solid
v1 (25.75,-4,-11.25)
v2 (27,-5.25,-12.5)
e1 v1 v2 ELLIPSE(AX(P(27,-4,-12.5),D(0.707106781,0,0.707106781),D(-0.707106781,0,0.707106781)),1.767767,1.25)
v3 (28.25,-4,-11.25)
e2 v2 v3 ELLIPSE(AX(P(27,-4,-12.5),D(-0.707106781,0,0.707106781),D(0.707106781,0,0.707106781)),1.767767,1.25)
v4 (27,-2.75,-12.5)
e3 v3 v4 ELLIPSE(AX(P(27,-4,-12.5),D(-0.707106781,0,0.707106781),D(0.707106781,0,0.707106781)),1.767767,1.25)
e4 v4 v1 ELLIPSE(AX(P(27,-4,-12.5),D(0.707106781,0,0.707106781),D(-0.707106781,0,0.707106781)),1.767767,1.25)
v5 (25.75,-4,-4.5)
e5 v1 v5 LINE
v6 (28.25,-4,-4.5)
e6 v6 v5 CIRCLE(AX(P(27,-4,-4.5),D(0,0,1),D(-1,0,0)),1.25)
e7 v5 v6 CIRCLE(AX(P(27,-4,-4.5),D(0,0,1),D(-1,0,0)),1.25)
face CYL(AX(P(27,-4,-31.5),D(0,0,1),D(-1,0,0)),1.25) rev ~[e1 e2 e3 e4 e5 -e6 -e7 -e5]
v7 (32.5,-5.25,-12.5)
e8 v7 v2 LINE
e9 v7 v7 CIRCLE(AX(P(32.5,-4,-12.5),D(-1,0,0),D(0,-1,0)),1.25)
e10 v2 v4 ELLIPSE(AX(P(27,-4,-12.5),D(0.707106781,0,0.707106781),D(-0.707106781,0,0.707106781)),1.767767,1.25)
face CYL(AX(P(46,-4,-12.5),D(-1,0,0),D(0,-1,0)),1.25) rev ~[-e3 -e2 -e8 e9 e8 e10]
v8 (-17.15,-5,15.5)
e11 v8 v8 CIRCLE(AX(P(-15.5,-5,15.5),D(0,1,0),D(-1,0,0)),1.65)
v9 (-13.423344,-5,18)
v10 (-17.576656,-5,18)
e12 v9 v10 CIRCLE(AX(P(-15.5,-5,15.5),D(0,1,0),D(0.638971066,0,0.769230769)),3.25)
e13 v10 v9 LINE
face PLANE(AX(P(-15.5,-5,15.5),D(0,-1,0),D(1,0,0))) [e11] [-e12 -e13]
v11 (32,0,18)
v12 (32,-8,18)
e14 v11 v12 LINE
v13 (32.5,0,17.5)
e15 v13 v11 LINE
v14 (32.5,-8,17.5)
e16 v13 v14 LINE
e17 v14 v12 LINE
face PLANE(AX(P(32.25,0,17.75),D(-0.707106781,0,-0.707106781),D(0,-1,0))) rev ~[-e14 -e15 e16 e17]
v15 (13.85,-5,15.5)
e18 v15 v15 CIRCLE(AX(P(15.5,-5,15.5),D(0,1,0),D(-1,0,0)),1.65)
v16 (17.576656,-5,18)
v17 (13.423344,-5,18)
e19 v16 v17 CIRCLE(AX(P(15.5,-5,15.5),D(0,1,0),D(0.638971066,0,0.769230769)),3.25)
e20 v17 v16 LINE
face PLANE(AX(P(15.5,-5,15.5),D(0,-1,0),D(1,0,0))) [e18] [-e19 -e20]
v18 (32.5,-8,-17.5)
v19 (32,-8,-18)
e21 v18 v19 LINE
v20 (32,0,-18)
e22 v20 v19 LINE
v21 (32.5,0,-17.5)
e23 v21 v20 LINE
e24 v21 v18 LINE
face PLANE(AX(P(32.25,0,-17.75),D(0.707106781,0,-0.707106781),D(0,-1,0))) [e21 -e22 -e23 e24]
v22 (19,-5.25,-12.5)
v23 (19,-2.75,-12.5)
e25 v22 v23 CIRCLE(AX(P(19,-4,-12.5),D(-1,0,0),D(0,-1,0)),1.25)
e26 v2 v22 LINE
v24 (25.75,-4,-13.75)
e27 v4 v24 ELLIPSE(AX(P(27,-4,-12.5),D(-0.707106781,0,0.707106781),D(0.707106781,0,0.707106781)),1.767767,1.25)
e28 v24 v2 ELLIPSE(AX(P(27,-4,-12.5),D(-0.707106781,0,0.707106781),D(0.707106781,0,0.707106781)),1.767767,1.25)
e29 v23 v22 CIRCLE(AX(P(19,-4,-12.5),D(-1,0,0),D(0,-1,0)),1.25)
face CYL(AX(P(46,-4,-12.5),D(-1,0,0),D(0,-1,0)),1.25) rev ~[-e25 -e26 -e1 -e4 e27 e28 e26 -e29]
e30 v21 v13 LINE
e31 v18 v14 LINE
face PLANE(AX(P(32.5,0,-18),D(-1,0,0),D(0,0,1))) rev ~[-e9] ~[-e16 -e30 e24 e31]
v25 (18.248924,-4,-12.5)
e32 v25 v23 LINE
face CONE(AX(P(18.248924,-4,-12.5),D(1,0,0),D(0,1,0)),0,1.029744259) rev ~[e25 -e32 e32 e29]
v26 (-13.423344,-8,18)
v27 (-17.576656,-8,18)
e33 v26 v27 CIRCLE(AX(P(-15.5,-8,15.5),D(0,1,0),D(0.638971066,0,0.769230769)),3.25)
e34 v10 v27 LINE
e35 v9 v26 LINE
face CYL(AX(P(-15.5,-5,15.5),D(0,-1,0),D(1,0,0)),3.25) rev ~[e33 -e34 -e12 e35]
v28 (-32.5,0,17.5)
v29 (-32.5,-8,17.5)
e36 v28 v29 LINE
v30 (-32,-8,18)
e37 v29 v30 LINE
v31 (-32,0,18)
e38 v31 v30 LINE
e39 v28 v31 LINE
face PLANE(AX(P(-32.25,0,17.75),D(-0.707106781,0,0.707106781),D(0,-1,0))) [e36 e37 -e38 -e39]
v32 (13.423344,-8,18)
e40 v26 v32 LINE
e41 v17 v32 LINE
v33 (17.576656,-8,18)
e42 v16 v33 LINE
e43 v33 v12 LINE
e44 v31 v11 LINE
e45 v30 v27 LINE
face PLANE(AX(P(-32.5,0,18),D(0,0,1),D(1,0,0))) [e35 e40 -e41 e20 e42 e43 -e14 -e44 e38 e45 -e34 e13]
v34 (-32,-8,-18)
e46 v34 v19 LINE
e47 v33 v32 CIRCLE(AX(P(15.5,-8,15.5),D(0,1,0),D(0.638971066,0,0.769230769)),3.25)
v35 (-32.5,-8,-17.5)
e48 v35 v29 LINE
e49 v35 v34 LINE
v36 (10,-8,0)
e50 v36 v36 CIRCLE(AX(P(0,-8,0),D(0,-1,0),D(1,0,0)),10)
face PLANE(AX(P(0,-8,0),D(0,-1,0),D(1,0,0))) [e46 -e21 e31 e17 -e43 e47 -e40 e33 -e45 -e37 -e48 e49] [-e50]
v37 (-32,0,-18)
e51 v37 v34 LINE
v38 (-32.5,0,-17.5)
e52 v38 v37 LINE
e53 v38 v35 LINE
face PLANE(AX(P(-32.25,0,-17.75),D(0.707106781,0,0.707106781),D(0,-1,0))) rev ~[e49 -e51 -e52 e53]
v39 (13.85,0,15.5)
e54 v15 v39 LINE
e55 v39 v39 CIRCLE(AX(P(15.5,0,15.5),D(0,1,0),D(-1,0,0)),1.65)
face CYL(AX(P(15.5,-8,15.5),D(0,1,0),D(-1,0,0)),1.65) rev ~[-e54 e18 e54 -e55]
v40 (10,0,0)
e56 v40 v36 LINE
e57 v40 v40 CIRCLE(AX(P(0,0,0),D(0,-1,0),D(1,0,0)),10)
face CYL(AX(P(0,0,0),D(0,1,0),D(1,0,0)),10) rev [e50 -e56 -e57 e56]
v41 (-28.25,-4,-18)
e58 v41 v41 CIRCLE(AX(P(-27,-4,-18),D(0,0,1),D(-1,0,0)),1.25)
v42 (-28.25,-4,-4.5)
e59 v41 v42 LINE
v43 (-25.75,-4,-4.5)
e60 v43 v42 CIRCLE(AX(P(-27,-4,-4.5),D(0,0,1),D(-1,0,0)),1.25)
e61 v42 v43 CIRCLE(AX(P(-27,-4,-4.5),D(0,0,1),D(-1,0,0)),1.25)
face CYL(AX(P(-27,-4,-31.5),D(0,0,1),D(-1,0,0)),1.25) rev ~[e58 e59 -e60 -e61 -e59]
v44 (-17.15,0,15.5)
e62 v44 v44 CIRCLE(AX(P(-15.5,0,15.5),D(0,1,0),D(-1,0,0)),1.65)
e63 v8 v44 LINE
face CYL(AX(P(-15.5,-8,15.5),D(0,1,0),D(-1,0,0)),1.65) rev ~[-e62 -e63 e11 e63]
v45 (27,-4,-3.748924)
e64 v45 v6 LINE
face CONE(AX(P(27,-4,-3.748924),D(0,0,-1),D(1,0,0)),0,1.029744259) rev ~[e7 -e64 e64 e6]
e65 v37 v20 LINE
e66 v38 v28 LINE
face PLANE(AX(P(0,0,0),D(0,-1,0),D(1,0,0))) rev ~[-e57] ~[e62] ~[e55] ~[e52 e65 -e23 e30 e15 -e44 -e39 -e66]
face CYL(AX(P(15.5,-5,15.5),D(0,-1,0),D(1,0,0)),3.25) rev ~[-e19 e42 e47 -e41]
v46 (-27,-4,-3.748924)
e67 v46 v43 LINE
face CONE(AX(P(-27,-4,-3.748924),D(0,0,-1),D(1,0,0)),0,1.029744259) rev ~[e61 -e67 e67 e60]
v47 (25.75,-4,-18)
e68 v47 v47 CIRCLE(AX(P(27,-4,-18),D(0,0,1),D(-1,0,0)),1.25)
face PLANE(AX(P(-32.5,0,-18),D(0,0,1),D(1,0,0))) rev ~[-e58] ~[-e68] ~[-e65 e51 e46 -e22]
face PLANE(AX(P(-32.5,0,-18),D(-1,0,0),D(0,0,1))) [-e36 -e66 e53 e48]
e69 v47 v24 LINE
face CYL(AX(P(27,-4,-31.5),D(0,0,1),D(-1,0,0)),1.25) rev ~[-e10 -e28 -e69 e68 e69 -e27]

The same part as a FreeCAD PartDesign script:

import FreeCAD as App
import Part
import Sketcher
Q = App.Units.Quantity


def edges_at(feature, points):
    """Names of the edges that pass closest to the given points."""
    edges = feature.Shape.Edges
    near = lambda p: min(range(len(edges)), key=lambda i: edges[i].distToShape(Part.Vertex(*p))[0])
    return sorted({f"Edge{near(p) + 1}" for p in points})

doc = App.newDocument("Part")
body = doc.addObject("PartDesign::Body", "Body")

sketch1 = body.newObject("Sketcher::SketchObject", "Sketch")
sketch1.AttachmentSupport = (doc.getObject("XZ_Plane"), [""])
sketch1.MapMode = "FlatFace"
sketch1.addGeometry([
    Part.LineSegment(App.Vector(-32, 18, 0), App.Vector(-32, -18, 0)),
    Part.LineSegment(App.Vector(-32, -18, 0), App.Vector(32, -18, 0)),
    Part.LineSegment(App.Vector(32, -18, 0), App.Vector(32, 18, 0)),
    Part.LineSegment(App.Vector(32, 18, 0), App.Vector(-32, 18, 0)),
    Part.Circle(App.Vector(0, 0, 0), App.Vector(0, 0, 1), 10),
], False)
sketch1.addConstraint([
    Sketcher.Constraint("Coincident", 0, 2, 1, 1),
    Sketcher.Constraint("Coincident", 1, 2, 2, 1),
    Sketcher.Constraint("Coincident", 2, 2, 3, 1),
    Sketcher.Constraint("Coincident", 3, 2, 0, 1),
    Sketcher.Constraint("Vertical", 0),
    Sketcher.Constraint("Horizontal", 1),
    Sketcher.Constraint("Vertical", 2),
    Sketcher.Constraint("Horizontal", 3),
    Sketcher.Constraint("Coincident", 4, 3, -1, 1),
    Sketcher.Constraint("Symmetric", 0, 2, 2, 2, -1, 1),
    Sketcher.Constraint("Diameter", 4, Q("20 mm")),
    Sketcher.Constraint("DistanceX", 1, 1, 1, 2, Q("65 mm")),
    Sketcher.Constraint("DistanceY", 0, 2, 0, 1, Q("36 mm")),
])
pad1 = body.newObject("PartDesign::Pad", "Pad")
pad1.Profile = sketch1
pad1.Length = 8

sketch2 = body.newObject("Sketcher::SketchObject", "Sketch001")
sketch2.AttachmentSupport = (doc.getObject("XZ_Plane"), [""])
sketch2.MapMode = "FlatFace"
sketch2.AttachmentOffset = App.Placement(App.Vector(0, 0, 8), App.Rotation())
sketch2.addGeometry([
    Part.Circle(App.Vector(15.5, 15.5, 0), App.Vector(0, 0, 1), 1.6),
    Part.Circle(App.Vector(-15.5, 15.5, 0), App.Vector(0, 0, 1), 1.6),
], False)
sketch2.addConstraint([
    Sketcher.Constraint("Equal", 0, 1),
    Sketcher.Constraint("Symmetric", 0, 3, 1, 3, -2),
    Sketcher.Constraint("Diameter", 0, Q("3.3 mm")),
    Sketcher.Constraint("DistanceX", 1, 3, 0, 3, Q("31 mm")),
    Sketcher.Constraint("DistanceY", -1, 1, 0, 3, Q("15.5 mm")),
])
doc.recompute()
hole = body.newObject("PartDesign::Hole", "Hole")
hole.Profile = sketch2
hole.ThreadType = "None"
hole.Diameter = 3.3
hole.DepthType = "ThroughAll"
hole.HoleCutType = "Counterbore"
hole.HoleCutDiameter = 6.5
hole.HoleCutDepth = 3
doc.recompute()

chamfer = body.newObject("PartDesign::Chamfer", "Chamfer")
chamfer.Base = (hole, edges_at(hole, [
    (-32.5, -4, 18),
    (32.5, -4, 18),
    (32.5, -4, -18),
    (-32.5, -4, -18),
]))
chamfer.Size = 0.5

sketch3 = body.newObject("Sketcher::SketchObject", "Sketch002")
sketch3.AttachmentSupport = (doc.getObject("XY_Plane"), [""])
sketch3.MapMode = "FlatFace"
sketch3.AttachmentOffset = App.Placement(App.Vector(0, 0, -18), App.Rotation())
sketch3.addGeometry([
    Part.Circle(App.Vector(27, -4, 0), App.Vector(0, 0, 1), 1.2),
    Part.Circle(App.Vector(-27, -4, 0), App.Vector(0, 0, 1), 1.2),
], False)
sketch3.addConstraint([
    Sketcher.Constraint("Equal", 0, 1),
    Sketcher.Constraint("Symmetric", 0, 3, 1, 3, -2),
    Sketcher.Constraint("Diameter", 0, Q("2.5 mm")),
    Sketcher.Constraint("DistanceX", -1, 1, 0, 3, Q("27 mm")),
    Sketcher.Constraint("DistanceY", 0, 3, -1, 1, Q("4 mm")),
])
doc.recompute()
hole2 = body.newObject("PartDesign::Hole", "Hole001")
hole2.Profile = sketch3
hole2.ThreadType = "None"
hole2.Diameter = 2.5
hole2.DepthType = "Dimension"
hole2.Depth = 13.5
hole2.DrillPoint = "Angled"
hole2.DrillPointAngle = 118
hole2.Reversed = True

sketch4 = body.newObject("Sketcher::SketchObject", "Sketch003")
sketch4.AttachmentSupport = (doc.getObject("YZ_Plane"), [""])
sketch4.MapMode = "FlatFace"
sketch4.AttachmentOffset = App.Placement(App.Vector(0, 0, 32.5), App.Rotation())
sketch4.addGeometry(Part.Circle(App.Vector(-4, -12.5, 0), App.Vector(0, 0, 1), 1.2), False)
sketch4.addConstraint([
    Sketcher.Constraint("Diameter", 0, Q("2.5 mm")),
    Sketcher.Constraint("DistanceX", 0, 3, -1, 1, Q("4 mm")),
    Sketcher.Constraint("DistanceY", 0, 3, -1, 1, Q("12.5 mm")),
])
doc.recompute()
hole3 = body.newObject("PartDesign::Hole", "Hole002")
hole3.Profile = sketch4
hole3.ThreadType = "None"
hole3.Diameter = 2.5
hole3.DepthType = "Dimension"
hole3.Depth = 13.5
hole3.DrillPoint = "Angled"
hole3.DrillPointAngle = 118

doc.recompute()
